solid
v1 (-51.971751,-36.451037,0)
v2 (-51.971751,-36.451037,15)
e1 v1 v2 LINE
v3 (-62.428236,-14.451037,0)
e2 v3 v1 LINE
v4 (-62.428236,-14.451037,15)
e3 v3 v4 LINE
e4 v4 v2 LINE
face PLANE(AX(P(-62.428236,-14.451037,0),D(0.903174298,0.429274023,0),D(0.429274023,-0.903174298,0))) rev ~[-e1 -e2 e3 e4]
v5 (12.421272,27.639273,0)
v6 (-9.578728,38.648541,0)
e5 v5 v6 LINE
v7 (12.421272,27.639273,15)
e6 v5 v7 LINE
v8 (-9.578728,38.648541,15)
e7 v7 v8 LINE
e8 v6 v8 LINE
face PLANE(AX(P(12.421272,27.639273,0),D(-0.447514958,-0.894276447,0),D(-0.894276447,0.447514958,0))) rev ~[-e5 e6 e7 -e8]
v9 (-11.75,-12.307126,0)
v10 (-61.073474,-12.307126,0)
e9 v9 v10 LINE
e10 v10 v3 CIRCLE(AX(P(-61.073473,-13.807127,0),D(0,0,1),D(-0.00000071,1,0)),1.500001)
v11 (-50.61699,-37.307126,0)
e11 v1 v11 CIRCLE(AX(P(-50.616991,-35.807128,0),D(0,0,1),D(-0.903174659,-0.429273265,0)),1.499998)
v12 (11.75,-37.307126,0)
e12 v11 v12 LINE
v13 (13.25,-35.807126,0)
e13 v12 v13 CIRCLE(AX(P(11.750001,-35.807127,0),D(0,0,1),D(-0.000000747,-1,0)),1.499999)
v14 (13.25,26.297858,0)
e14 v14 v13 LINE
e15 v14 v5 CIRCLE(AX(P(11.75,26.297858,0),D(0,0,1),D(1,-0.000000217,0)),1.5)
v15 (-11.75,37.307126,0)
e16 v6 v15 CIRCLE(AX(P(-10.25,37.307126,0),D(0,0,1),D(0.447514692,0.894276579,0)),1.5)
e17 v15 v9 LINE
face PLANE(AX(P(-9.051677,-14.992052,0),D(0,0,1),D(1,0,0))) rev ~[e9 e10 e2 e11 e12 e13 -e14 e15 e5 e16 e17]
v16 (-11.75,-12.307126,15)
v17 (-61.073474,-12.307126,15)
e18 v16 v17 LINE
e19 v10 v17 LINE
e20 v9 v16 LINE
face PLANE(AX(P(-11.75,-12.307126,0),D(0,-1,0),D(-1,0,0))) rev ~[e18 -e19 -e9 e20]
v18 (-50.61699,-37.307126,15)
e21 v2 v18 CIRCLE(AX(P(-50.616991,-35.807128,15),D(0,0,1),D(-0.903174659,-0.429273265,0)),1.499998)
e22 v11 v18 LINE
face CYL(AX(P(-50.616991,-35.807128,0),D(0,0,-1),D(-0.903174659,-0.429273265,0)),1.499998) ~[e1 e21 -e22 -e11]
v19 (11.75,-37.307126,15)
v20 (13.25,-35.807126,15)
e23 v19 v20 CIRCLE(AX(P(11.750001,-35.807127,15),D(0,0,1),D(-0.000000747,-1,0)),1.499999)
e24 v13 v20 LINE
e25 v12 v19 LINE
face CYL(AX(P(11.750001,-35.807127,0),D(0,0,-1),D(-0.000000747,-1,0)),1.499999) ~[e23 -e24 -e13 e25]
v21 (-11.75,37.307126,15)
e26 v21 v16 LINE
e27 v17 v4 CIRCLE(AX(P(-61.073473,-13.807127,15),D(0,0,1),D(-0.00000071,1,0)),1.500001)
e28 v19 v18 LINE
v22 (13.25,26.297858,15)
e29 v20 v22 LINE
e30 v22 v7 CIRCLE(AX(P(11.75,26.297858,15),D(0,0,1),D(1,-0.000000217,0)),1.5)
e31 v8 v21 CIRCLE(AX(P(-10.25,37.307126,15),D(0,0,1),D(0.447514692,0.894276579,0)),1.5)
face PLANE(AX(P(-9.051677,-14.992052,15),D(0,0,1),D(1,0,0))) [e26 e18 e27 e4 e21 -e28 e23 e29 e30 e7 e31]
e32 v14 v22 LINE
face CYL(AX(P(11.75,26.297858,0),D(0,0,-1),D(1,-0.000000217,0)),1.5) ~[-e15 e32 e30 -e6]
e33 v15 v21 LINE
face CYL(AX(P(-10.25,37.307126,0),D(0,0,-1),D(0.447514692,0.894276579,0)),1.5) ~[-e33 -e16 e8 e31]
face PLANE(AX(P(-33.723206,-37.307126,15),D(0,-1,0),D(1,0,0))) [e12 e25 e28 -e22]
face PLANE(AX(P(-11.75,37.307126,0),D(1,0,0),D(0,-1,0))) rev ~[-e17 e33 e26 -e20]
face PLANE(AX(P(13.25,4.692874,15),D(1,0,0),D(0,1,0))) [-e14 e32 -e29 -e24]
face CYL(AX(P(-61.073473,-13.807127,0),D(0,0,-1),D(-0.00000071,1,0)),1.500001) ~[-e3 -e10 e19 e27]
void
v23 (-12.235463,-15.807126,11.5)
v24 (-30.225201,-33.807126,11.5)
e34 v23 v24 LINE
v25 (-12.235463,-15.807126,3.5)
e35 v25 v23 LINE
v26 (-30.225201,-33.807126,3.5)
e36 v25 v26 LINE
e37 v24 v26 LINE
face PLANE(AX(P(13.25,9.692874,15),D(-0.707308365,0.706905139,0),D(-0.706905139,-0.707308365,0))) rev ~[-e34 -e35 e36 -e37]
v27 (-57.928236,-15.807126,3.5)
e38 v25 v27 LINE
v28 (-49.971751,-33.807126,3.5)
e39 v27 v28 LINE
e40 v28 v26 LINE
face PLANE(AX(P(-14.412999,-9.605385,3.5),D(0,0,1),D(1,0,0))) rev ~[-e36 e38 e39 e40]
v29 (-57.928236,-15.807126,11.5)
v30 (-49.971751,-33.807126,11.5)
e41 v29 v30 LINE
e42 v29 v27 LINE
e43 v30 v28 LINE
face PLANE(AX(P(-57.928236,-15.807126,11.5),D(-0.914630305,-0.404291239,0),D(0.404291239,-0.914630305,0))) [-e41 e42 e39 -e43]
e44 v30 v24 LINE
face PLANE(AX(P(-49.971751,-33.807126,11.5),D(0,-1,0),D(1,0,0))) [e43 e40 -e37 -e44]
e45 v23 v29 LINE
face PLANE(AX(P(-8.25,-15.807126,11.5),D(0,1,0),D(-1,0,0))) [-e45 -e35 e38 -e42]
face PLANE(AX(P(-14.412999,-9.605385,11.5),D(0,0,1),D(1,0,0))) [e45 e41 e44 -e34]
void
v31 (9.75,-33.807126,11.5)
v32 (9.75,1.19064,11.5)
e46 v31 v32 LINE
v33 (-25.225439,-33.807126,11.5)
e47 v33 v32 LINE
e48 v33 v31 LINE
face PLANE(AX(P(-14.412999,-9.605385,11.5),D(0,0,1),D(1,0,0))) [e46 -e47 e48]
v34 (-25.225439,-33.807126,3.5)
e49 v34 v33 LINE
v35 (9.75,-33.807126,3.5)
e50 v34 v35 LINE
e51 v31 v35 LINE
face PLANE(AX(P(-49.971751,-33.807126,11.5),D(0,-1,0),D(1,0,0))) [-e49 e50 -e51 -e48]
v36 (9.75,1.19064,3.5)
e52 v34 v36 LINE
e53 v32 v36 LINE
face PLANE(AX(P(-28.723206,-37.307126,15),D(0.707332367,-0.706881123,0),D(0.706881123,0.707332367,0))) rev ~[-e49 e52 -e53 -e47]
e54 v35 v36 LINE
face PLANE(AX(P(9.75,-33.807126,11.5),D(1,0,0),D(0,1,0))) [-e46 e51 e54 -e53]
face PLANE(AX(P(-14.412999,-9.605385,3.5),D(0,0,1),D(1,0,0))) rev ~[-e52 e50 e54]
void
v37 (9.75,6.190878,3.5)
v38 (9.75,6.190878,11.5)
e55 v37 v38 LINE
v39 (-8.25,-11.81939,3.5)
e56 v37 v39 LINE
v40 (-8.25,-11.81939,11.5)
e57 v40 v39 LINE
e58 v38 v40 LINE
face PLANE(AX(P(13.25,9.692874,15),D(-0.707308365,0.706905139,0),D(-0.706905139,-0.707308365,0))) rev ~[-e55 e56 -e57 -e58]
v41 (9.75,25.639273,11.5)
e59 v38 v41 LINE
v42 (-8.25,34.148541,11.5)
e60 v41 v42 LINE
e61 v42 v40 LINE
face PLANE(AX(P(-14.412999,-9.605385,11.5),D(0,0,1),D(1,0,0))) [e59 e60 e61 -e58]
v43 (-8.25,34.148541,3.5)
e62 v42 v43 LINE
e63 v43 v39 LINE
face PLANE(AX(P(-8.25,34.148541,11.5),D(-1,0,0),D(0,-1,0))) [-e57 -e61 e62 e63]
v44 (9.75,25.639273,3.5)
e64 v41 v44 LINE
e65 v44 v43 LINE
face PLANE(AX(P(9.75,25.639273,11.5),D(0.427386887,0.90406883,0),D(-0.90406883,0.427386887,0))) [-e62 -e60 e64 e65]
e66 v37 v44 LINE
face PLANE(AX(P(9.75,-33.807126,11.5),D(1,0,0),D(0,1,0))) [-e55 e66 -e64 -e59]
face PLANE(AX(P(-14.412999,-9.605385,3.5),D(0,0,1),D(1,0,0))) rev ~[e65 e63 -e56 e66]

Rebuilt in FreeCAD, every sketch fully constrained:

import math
import FreeCAD as App
import Part
import Sketcher


def add_polygon(sketch, points):
    """Adds a closed chain of lines whose ends are joined by coincident constraints."""
    first, n = sketch.GeometryCount, len(points)
    for a, b in zip(points, points[1:] + points[:1]):
        sketch.addGeometry(Part.LineSegment(App.Vector(*a, 0), App.Vector(*b, 0)), False)
    for i in range(n):
        sketch.addConstraint(Sketcher.Constraint("Coincident", first + i, 2, first + (i + 1) % n, 1))

doc = App.newDocument("Part")
body = doc.addObject("PartDesign::Body", "Body")

sketch1 = body.newObject("Sketcher::SketchObject", "Sketch")
sketch1.AttachmentSupport = (doc.getObject("XY_Plane"), [""])
sketch1.MapMode = "FlatFace"
sketch1.addGeometry(Part.LineSegment(App.Vector(-50.61699, -37.307126, 0), App.Vector(11.75, -37.307126, 0)), False)
sketch1.addGeometry(Part.ArcOfCircle(Part.Circle(App.Vector(11.750001, -35.807127, 0), App.Vector(0, 0, 1), 1.499999), math.radians(-90.000043), math.radians(0.000043)), False)
sketch1.addGeometry(Part.LineSegment(App.Vector(13.25, -35.807126, 0), App.Vector(13.25, 26.297858, 0)), False)
sketch1.addGeometry(Part.ArcOfCircle(Part.Circle(App.Vector(11.75, 26.297858, 0), App.Vector(0, 0, 1), 1.5), math.radians(-0.000012), math.radians(63.415669)), False)
sketch1.addGeometry(Part.LineSegment(App.Vector(12.421272, 27.639273, 0), App.Vector(-9.578728, 38.648541, 0)), False)
sketch1.addGeometry(Part.ArcOfCircle(Part.Circle(App.Vector(-10.25, 37.307126, 0), App.Vector(0, 0, 1), 1.5), math.radians(63.415659), math.radians(180.000006)), False)
sketch1.addGeometry(Part.LineSegment(App.Vector(-11.75, 37.307126, 0), App.Vector(-11.75, -12.307126, 0)), False)
sketch1.addGeometry(Part.LineSegment(App.Vector(-11.75, -12.307126, 0), App.Vector(-61.073474, -12.307126, 0)), False)
sketch1.addGeometry(Part.ArcOfCircle(Part.Circle(App.Vector(-61.073473, -13.807127, 0), App.Vector(0, 0, 1), 1.500001), math.radians(90.000041), math.radians(205.421434)), False)
sketch1.addGeometry(Part.LineSegment(App.Vector(-62.428236, -14.451037, 0), App.Vector(-51.971751, -36.451037, 0)), False)
sketch1.addGeometry(Part.ArcOfCircle(Part.Circle(App.Vector(-50.616991, -35.807128, 0), App.Vector(0, 0, 1), 1.499998), math.radians(-154.578551), math.radians(-89.999971)), False)
sketch1.addConstraint(Sketcher.Constraint("Tangent", 0, 2, 1, 1))
sketch1.addConstraint(Sketcher.Constraint("Tangent", 1, 2, 2, 1))
sketch1.addConstraint(Sketcher.Constraint("Tangent", 2, 2, 3, 1))
sketch1.addConstraint(Sketcher.Constraint("Tangent", 3, 2, 4, 1))
sketch1.addConstraint(Sketcher.Constraint("Tangent", 4, 2, 5, 1))
sketch1.addConstraint(Sketcher.Constraint("Tangent", 5, 2, 6, 1))
sketch1.addConstraint(Sketcher.Constraint("Coincident", 6, 2, 7, 1))
sketch1.addConstraint(Sketcher.Constraint("Tangent", 7, 2, 8, 1))
sketch1.addConstraint(Sketcher.Constraint("Tangent", 8, 2, 9, 1))
sketch1.addConstraint(Sketcher.Constraint("Tangent", 9, 2, 10, 1))
sketch1.addConstraint(Sketcher.Constraint("Tangent", 10, 2, 0, 1))
sketch1.addConstraint(Sketcher.Constraint("Horizontal", 0))
sketch1.addConstraint(Sketcher.Constraint("Vertical", 2))
sketch1.addConstraint(Sketcher.Constraint("Vertical", 6))
sketch1.addConstraint(Sketcher.Constraint("Horizontal", 7))
sketch1.addConstraint(Sketcher.Constraint("Equal", 1, 3))
sketch1.addConstraint(Sketcher.Constraint("Equal", 3, 5))
sketch1.addConstraint(Sketcher.Constraint("Equal", 5, 8))
sketch1.addConstraint(Sketcher.Constraint("Equal", 5, 10))
sketch1.addConstraint(Sketcher.Constraint("Symmetric", 0, 2, 5, 2, -1, 1))
sketch1.addConstraint(Sketcher.Constraint("Radius", 1, 1.499999))
sketch1.addConstraint(Sketcher.Constraint("DistanceX", 5, 3, 3, 3, 22.0))
sketch1.addConstraint(Sketcher.Constraint("DistanceY", 1, 3, 8, 3, 22.0))
sketch1.addConstraint(Sketcher.Constraint("DistanceX", 0, 1, 0, 2, 62.36699))
sketch1.addConstraint(Sketcher.Constraint("DistanceY", 6, 2, 6, 1, 49.614252))
sketch1.addConstraint(Sketcher.Constraint("DistanceY", 1, 3, 3, 2, 63.4464))
sketch1.addConstraint(Sketcher.Constraint("Distance", 9, 24.358532))
pad1 = body.newObject("PartDesign::Pad", "Pad")
pad1.Profile = sketch1
pad1.Length = 15

sketch2 = body.newObject("Sketcher::SketchObject", "Sketch001")
sketch2.AttachmentSupport = (doc.getObject("XY_Plane"), [""])
sketch2.MapMode = "FlatFace"
sketch2.AttachmentOffset = App.Placement(App.Vector(0, 0, 11.5), App.Rotation())
add_polygon(sketch2, [(-8.25, -15.807126), (-57.928236, -15.807126), (-49.971751, -33.807126), (9.75, -33.807126), (9.75, 25.639273), (-8.25, 34.148541)])
sketch2.addConstraint(Sketcher.Constraint("Horizontal", 0))
sketch2.addConstraint(Sketcher.Constraint("Horizontal", 2))
sketch2.addConstraint(Sketcher.Constraint("Vertical", 3))
sketch2.addConstraint(Sketcher.Constraint("Vertical", 5))
sketch2.addConstraint(Sketcher.Constraint("DistanceY", 1, 2, 0, 2, 18.0))
sketch2.addConstraint(Sketcher.Constraint("DistanceX", 4, 2, 3, 2, 18.0))
sketch2.addConstraint(Sketcher.Constraint("DistanceX", -1, 1, 2, 2, 9.75))
sketch2.addConstraint(Sketcher.Constraint("DistanceY", 3, 1, 3, 2, 59.446399))
sketch2.addConstraint(Sketcher.Constraint("DistanceX", 2, 1, 2, 2, 59.721751))
sketch2.addConstraint(Sketcher.Constraint("Distance", 4, 19.909988))
sketch2.addConstraint(Sketcher.Constraint("DistanceX", 0, 2, 0, 1, 49.678236))
sketch2.addConstraint(Sketcher.Constraint("DistanceY", -1, 1, 4, 2, 34.148541))
pocket1 = body.newObject("PartDesign::Pocket", "Pocket")
pocket1.Profile = sketch2
pocket1.Length = 8

sketch3 = body.newObject("Sketcher::SketchObject", "Sketch002")
sketch3.AttachmentSupport = (doc.getObject("XY_Plane"), [""])
sketch3.MapMode = "FlatFace"
sketch3.AttachmentOffset = App.Placement(App.Vector(0, 0, 15), App.Rotation())
add_polygon(sketch3, [(-33.723206, -37.307126), (-28.723206, -37.307126), (13.25, 4.692874), (13.25, 9.692874)])
sketch3.addConstraint(Sketcher.Constraint("Horizontal", 0))
sketch3.addConstraint(Sketcher.Constraint("Vertical", 2))
sketch3.addConstraint(Sketcher.Constraint("Equal", 0, 2))
sketch3.addConstraint(Sketcher.Constraint("DistanceX", 0, 1, 0, 2, 5.0))
sketch3.addConstraint(Sketcher.Constraint("DistanceY", 0, 2, 1, 2, 42.0))
sketch3.addConstraint(Sketcher.Constraint("DistanceX", -1, 1, 1, 2, 13.25))
sketch3.addConstraint(Sketcher.Constraint("Distance", 1, 59.378026))
sketch3.addConstraint(Sketcher.Constraint("DistanceY", 0, 2, -1, 1, 37.307126))
pad2 = body.newObject("PartDesign::Pad", "Pad001")
pad2.Profile = sketch3
pad2.Length = 15
pad2.Reversed = True

doc.recompute()
